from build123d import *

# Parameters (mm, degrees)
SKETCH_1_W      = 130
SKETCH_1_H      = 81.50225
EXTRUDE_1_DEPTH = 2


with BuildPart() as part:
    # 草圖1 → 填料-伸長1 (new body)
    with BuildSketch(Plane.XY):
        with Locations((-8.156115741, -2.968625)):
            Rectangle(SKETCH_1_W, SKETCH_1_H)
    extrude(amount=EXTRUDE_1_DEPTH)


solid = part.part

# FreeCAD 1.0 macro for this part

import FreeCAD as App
import Part
import Sketcher

V = App.Vector

doc = App.newDocument("Part")
body = doc.addObject("PartDesign::Body", "Body")

# Sketch on XY plane
sketch1 = body.newObject("Sketcher::SketchObject", "Sketch")
sketch1.AttachmentSupport = (doc.getObject("XY_Plane"), [""])
sketch1.MapMode = "FlatFace"
sketch1.addGeometry([
    Part.LineSegment(V(-73, 38, 0), V(-73, -44, 0)),
    Part.LineSegment(V(-73, -44, 0), V(57, -44, 0)),
    Part.LineSegment(V(57, -44, 0), V(57, 38, 0)),
    Part.LineSegment(V(57, 38, 0), V(-73, 38, 0)),
], False)
sketch1.addConstraint([
    Sketcher.Constraint("Coincident", 0, 2, 1, 1),
    Sketcher.Constraint("Coincident", 1, 2, 2, 1),
    Sketcher.Constraint("Coincident", 2, 2, 3, 1),
    Sketcher.Constraint("Coincident", 3, 2, 0, 1),
    Sketcher.Constraint("Vertical", 0),
    Sketcher.Constraint("Horizontal", 1),
    Sketcher.Constraint("Vertical", 2),
    Sketcher.Constraint("Horizontal", 3),
    Sketcher.Constraint("DistanceX", 1, 1, 1, 2, 130.0),
    Sketcher.Constraint("DistanceY", 0, 2, 0, 1, 81.50225),
    Sketcher.Constraint("DistanceY", -1, 1, 2, 2, 37.7825),
    Sketcher.Constraint("DistanceX", 0, 2, -1, 1, 73.156116),
])
pad1 = body.newObject("PartDesign::Pad", "Pad")
pad1.Profile = sketch1
pad1.Length = 2

doc.recompute()
